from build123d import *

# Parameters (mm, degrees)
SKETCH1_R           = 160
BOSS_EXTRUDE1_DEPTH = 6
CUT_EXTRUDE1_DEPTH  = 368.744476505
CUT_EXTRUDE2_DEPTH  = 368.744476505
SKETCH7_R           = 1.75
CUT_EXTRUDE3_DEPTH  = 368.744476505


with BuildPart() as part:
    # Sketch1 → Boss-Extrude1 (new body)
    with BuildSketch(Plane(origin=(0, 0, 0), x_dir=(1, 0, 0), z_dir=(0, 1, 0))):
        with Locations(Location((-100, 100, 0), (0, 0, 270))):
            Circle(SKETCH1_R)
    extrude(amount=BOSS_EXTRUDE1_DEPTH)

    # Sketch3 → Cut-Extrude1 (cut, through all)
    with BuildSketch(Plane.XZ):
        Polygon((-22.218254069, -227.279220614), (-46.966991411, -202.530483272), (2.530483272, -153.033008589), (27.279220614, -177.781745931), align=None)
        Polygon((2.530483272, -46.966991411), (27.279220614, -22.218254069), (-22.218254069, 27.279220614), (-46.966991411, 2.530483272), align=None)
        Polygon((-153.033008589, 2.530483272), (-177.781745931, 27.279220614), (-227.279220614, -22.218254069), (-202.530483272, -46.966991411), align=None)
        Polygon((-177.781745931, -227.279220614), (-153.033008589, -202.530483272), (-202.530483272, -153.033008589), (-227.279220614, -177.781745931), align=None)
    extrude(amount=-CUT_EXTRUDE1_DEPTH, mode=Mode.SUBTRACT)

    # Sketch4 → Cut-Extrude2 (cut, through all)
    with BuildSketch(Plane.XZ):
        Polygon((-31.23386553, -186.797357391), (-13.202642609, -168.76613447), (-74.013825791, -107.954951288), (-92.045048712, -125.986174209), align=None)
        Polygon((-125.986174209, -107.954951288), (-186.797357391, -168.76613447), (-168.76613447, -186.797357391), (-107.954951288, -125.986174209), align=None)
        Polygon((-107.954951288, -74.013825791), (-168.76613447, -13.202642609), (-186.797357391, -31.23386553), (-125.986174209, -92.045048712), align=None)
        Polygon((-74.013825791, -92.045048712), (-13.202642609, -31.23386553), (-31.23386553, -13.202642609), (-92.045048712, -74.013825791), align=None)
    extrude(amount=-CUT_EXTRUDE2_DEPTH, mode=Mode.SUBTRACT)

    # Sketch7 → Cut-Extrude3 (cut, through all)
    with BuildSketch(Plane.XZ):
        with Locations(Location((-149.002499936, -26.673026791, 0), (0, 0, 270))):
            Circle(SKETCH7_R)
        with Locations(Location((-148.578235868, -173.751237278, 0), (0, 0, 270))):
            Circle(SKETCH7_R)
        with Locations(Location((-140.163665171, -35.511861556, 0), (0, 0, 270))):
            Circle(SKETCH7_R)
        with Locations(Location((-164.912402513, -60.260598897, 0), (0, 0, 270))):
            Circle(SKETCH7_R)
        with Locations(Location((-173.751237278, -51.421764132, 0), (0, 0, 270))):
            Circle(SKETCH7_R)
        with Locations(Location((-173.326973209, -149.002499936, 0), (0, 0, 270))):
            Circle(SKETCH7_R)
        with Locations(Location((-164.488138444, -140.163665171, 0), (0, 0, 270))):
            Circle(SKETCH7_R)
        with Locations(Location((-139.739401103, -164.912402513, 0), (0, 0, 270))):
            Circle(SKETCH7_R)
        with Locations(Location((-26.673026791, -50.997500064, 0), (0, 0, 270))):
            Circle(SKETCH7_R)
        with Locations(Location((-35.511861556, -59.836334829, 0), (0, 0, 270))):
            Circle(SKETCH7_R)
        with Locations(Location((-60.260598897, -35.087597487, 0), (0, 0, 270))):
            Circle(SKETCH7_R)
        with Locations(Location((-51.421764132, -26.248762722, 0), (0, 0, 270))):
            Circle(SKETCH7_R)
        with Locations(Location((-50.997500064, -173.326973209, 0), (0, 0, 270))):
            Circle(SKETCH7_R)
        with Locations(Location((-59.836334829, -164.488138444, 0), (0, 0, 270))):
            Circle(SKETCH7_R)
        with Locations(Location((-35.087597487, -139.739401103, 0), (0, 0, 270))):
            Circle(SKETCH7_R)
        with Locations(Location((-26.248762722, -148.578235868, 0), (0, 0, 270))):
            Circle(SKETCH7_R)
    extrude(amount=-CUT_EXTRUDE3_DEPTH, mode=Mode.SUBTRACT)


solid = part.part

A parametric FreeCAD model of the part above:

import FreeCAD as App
import Part
import Sketcher
Q = App.Units.Quantity


def add_polygon(sketch, points):
    """Adds a closed chain of lines whose ends are joined by coincident constraints."""
    first, n = sketch.GeometryCount, len(points)
    for a, b in zip(points, points[1:] + points[:1]):
        sketch.addGeometry(Part.LineSegment(App.Vector(*a, 0), App.Vector(*b, 0)), False)
    for i in range(n):
        sketch.addConstraint(Sketcher.Constraint("Coincident", first + i, 2, first + (i + 1) % n, 1))

doc = App.newDocument("Part")
body = doc.addObject("PartDesign::Body", "Body")

sketch1 = body.newObject("Sketcher::SketchObject", "Sketch")
sketch1.AttachmentSupport = (doc.getObject("XZ_Plane"), [""])
sketch1.MapMode = "FlatFace"
sketch1.addGeometry(Part.Circle(App.Vector(-100, -100, 0), App.Vector(0, 0, 1), 160), False)
sketch1.addConstraint([
    Sketcher.Constraint("Diameter", 0, Q("320 mm")),
    Sketcher.Constraint("DistanceX", 0, 3, -1, 1, Q("100 mm")),
    Sketcher.Constraint("DistanceY", 0, 3, -1, 1, Q("100 mm")),
])
pad1 = body.newObject("PartDesign::Pad", "Pad")
pad1.Profile = sketch1
pad1.Length = 6
pad1.Reversed = True

sketch2 = body.newObject("Sketcher::SketchObject", "Sketch001")
sketch2.AttachmentSupport = (doc.getObject("XZ_Plane"), [""])
sketch2.MapMode = "FlatFace"
add_polygon(sketch2, [(-47, -203), (-22, -227), (27, -178), (3, -153)])
add_polygon(sketch2, [(3, -47), (27, -22), (-22, 27), (-47, 3)])
add_polygon(sketch2, [(-153, 3), (-178, 27), (-227, -22), (-203, -47)])
add_polygon(sketch2, [(-178, -227), (-153, -203), (-203, -153), (-227, -178)])
sketch2.addConstraint([
    Sketcher.Constraint("Perpendicular", 0, 1),
    Sketcher.Constraint("Perpendicular", 1, 2),
    Sketcher.Constraint("Perpendicular", 2, 3),
    Sketcher.Constraint("Parallel", 3, 4),
    Sketcher.Constraint("Perpendicular", 4, 5),
    Sketcher.Constraint("Perpendicular", 5, 6),
    Sketcher.Constraint("Perpendicular", 6, 7),
    Sketcher.Constraint("Parallel", 7, 8),
    Sketcher.Constraint("Perpendicular", 8, 9),
    Sketcher.Constraint("Perpendicular", 9, 10),
    Sketcher.Constraint("Perpendicular", 10, 11),
    Sketcher.Constraint("Parallel", 11, 12),
    Sketcher.Constraint("Perpendicular", 12, 13),
    Sketcher.Constraint("Perpendicular", 13, 14),
    Sketcher.Constraint("Perpendicular", 14, 15),
    Sketcher.Constraint("Horizontal", 5, 2, 8, 2),
    Sketcher.Constraint("Horizontal", 4, 2, 9, 2),
    Sketcher.Constraint("Horizontal", 7, 2, 10, 2),
    Sketcher.Constraint("Horizontal", 3, 2, 12, 2),
    Sketcher.Constraint("Horizontal", 2, 2, 13, 2),
    Sketcher.Constraint("Horizontal", 1, 2, 14, 2),
    Sketcher.Constraint("Vertical", 1, 2, 4, 2),
    Sketcher.Constraint("Vertical", 0, 2, 5, 2),
    Sketcher.Constraint("Vertical", 3, 2, 6, 2),
    Sketcher.Constraint("Vertical", 11, 2, 12, 2),
    Sketcher.Constraint("Vertical", 10, 2, 13, 2),
    Sketcher.Constraint("Distance", 0, Q("35 mm")),
    Sketcher.Constraint("Distance", 1, Q("70 mm")),
    Sketcher.Constraint("DistanceY", 0, 2, -1, 1, Q("227.279221 mm")),
    Sketcher.Constraint("DistanceX", -1, 1, 1, 2, Q("27.279221 mm")),
    Sketcher.Constraint("DistanceY", -1, 1, 5, 2, Q("27.279221 mm")),
    Sketcher.Constraint("DistanceX", 9, 2, -1, 1, Q("227.279221 mm")),
])
pocket1 = body.newObject("PartDesign::Pocket", "Pocket")
pocket1.Profile = sketch2
pocket1.Type = "ThroughAll"

sketch3 = body.newObject("Sketcher::SketchObject", "Sketch002")
sketch3.AttachmentSupport = (doc.getObject("XZ_Plane"), [""])
sketch3.MapMode = "FlatFace"
add_polygon(sketch3, [(-31, -187), (-13, -169), (-74, -108), (-92, -126)])
add_polygon(sketch3, [(-126, -108), (-187, -169), (-169, -187), (-108, -126)])
add_polygon(sketch3, [(-108, -74), (-169, -13), (-187, -31), (-126, -92)])
add_polygon(sketch3, [(-74, -92), (-13, -31), (-31, -13), (-92, -74)])
sketch3.addConstraint([
    Sketcher.Constraint("Perpendicular", 0, 1),
    Sketcher.Constraint("Perpendicular", 1, 2),
    Sketcher.Constraint("Perpendicular", 2, 3),
    Sketcher.Constraint("Perpendicular", 3, 4),
    Sketcher.Constraint("Perpendicular", 4, 5),
    Sketcher.Constraint("Perpendicular", 5, 6),
    Sketcher.Constraint("Perpendicular", 6, 7),
    Sketcher.Constraint("Parallel", 7, 8),
    Sketcher.Constraint("Perpendicular", 8, 9),
    Sketcher.Constraint("Perpendicular", 9, 10),
    Sketcher.Constraint("Perpendicular", 10, 11),
    Sketcher.Constraint("Parallel", 11, 12),
    Sketcher.Constraint("Perpendicular", 12, 13),
    Sketcher.Constraint("Perpendicular", 13, 14),
    Sketcher.Constraint("Perpendicular", 14, 15),
    Sketcher.Constraint("Horizontal", 0, 2, 4, 2),
    Sketcher.Constraint("Horizontal", 3, 2, 5, 2),
    Sketcher.Constraint("Horizontal", 2, 2, 6, 2),
    Sketcher.Constraint("Horizontal", 9, 2, 12, 2),
    Sketcher.Constraint("Horizontal", 8, 2, 13, 2),
    Sketcher.Constraint("Horizontal", 11, 2, 14, 2),
    Sketcher.Constraint("Vertical", 5, 2, 8, 2),
    Sketcher.Constraint("Vertical", 4, 2, 9, 2),
    Sketcher.Constraint("Vertical", 7, 2, 10, 2),
    Sketcher.Constraint("Vertical", 0, 2, 12, 2),
    Sketcher.Constraint("Vertical", 3, 2, 13, 2),
    Sketcher.Constraint("Distance", 1, Q("86 mm")),
    Sketcher.Constraint("Distance", 0, Q("25.5 mm")),
    Sketcher.Constraint("DistanceY", 1, 2, -1, 1, Q("107.954951 mm")),
    Sketcher.Constraint("DistanceX", 2, 2, -1, 1, Q("92.045049 mm")),
    Sketcher.Constraint("DistanceX", 6, 2, -1, 1, Q("107.954951 mm")),
    Sketcher.Constraint("DistanceY", 10, 2, -1, 1, Q("92.045049 mm")),
])
pocket2 = body.newObject("PartDesign::Pocket", "Pocket001")
pocket2.Profile = sketch3
pocket2.Type = "ThroughAll"

sketch4 = body.newObject("Sketcher::SketchObject", "Sketch003")
sketch4.AttachmentSupport = (doc.getObject("XZ_Plane"), [""])
sketch4.MapMode = "FlatFace"
sketch4.addGeometry([
    Part.Circle(App.Vector(-149, -26.7, 0), App.Vector(0, 0, 1), 1.8),
    Part.Circle(App.Vector(-148.6, -173.8, 0), App.Vector(0, 0, 1), 1.8),
    Part.Circle(App.Vector(-140.2, -35.5, 0), App.Vector(0, 0, 1), 1.8),
    Part.Circle(App.Vector(-164.9, -60.3, 0), App.Vector(0, 0, 1), 1.8),
    Part.Circle(App.Vector(-173.8, -51.4, 0), App.Vector(0, 0, 1), 1.8),
    Part.Circle(App.Vector(-173.3, -149, 0), App.Vector(0, 0, 1), 1.8),
    Part.Circle(App.Vector(-164.5, -140.2, 0), App.Vector(0, 0, 1), 1.8),
    Part.Circle(App.Vector(-139.7, -164.9, 0), App.Vector(0, 0, 1), 1.8),
    Part.Circle(App.Vector(-26.7, -51, 0), App.Vector(0, 0, 1), 1.8),
    Part.Circle(App.Vector(-35.5, -59.8, 0), App.Vector(0, 0, 1), 1.8),
    Part.Circle(App.Vector(-60.3, -35.1, 0), App.Vector(0, 0, 1), 1.8),
    Part.Circle(App.Vector(-51.4, -26.2, 0), App.Vector(0, 0, 1), 1.8),
    Part.Circle(App.Vector(-51, -173.3, 0), App.Vector(0, 0, 1), 1.8),
    Part.Circle(App.Vector(-59.8, -164.5, 0), App.Vector(0, 0, 1), 1.8),
    Part.Circle(App.Vector(-35.1, -139.7, 0), App.Vector(0, 0, 1), 1.8),
    Part.Circle(App.Vector(-26.2, -148.6, 0), App.Vector(0, 0, 1), 1.8),
], False)
sketch4.addConstraint([
    Sketcher.Constraint("Equal", 0, 1),
    Sketcher.Constraint("Equal", 1, 2),
    Sketcher.Constraint("Equal", 2, 3),
    Sketcher.Constraint("Equal", 3, 4),
    Sketcher.Constraint("Equal", 4, 5),
    Sketcher.Constraint("Equal", 5, 6),
    Sketcher.Constraint("Equal", 6, 7),
    Sketcher.Constraint("Equal", 7, 8),
    Sketcher.Constraint("Equal", 8, 9),
    Sketcher.Constraint("Equal", 9, 10),
    Sketcher.Constraint("Equal", 10, 11),
    Sketcher.Constraint("Equal", 11, 12),
    Sketcher.Constraint("Equal", 12, 13),
    Sketcher.Constraint("Equal", 13, 14),
    Sketcher.Constraint("Equal", 14, 15),
    Sketcher.Constraint("Diameter", 0, Q("3.5 mm")),
    Sketcher.Constraint("DistanceX", 4, 3, 1, 3, Q("25.173001 mm")),
    Sketcher.Constraint("DistanceX", 3, 3, 7, 3, Q("25.173001 mm")),
    Sketcher.Constraint("DistanceY", 3, 3, 10, 3, Q("25.173001 mm")),
    Sketcher.Constraint("DistanceY", 7, 3, 14, 3, Q("25.173001 mm")),
    Sketcher.Constraint("DistanceX", 0, 3, -1, 1, Q("149.0025 mm")),
    Sketcher.Constraint("DistanceY", 3, 3, -1, 1, Q("60.260599 mm")),
    Sketcher.Constraint("DistanceY", 5, 3, -1, 1, Q("149.0025 mm")),
    Sketcher.Constraint("DistanceX", 7, 3, -1, 1, Q("139.739401 mm")),
    Sketcher.Constraint("DistanceY", 8, 3, -1, 1, Q("50.9975 mm")),
    Sketcher.Constraint("DistanceX", 10, 3, -1, 1, Q("60.260599 mm")),
    Sketcher.Constraint("DistanceX", 12, 3, -1, 1, Q("50.9975 mm")),
    Sketcher.Constraint("DistanceY", 14, 3, -1, 1, Q("139.739401 mm")),
    Sketcher.Constraint("DistanceX", 4, 3, 6, 3, Q("9.263099 mm")),
    Sketcher.Constraint("DistanceY", 6, 3, 4, 3, Q("88.741901 mm")),
    Sketcher.Constraint("DistanceX", 2, 3, 11, 3, Q("88.741901 mm")),
    Sketcher.Constraint("DistanceY", 2, 3, 11, 3, Q("9.263099 mm")),
    Sketcher.Constraint("DistanceX", 1, 3, 13, 3, Q("88.741901 mm")),
    Sketcher.Constraint("DistanceY", 1, 3, 13, 3, Q("9.263099 mm")),
    Sketcher.Constraint("DistanceX", 9, 3, 15, 3, Q("9.263099 mm")),
    Sketcher.Constraint("DistanceY", 15, 3, 9, 3, Q("88.741901 mm")),
    Sketcher.Constraint("DistanceY", 2, 3, -1, 1, Q("35.511862 mm")),
    Sketcher.Constraint("DistanceX", 6, 3, -1, 1, Q("164.488138 mm")),
    Sketcher.Constraint("DistanceX", 9, 3, -1, 1, Q("35.511862 mm")),
    Sketcher.Constraint("DistanceY", 13, 3, -1, 1, Q("164.488138 mm")),
    Sketcher.Constraint("DistanceY", 1, 3, 0, 3, Q("147.07821 mm")),
    Sketcher.Constraint("DistanceX", 1, 3, 2, 3, Q("8.414571 mm")),
    Sketcher.Constraint("DistanceX", 5, 3, 3, 3, Q("8.414571 mm")),
    Sketcher.Constraint("DistanceY", 7, 3, 4, 3, Q("113.490638 mm")),
    Sketcher.Constraint("DistanceX", 2, 3, 8, 3, Q("113.490638 mm")),
    Sketcher.Constraint("DistanceY", 9, 3, 0, 3, Q("33.163308 mm")),
    Sketcher.Constraint("DistanceY", 12, 3, 7, 3, Q("8.414571 mm")),
    Sketcher.Constraint("DistanceX", 14, 3, 8, 3, Q("8.414571 mm")),
])
pocket3 = body.newObject("PartDesign::Pocket", "Pocket002")
pocket3.Profile = sketch4
pocket3.Type = "ThroughAll"

doc.recompute()
